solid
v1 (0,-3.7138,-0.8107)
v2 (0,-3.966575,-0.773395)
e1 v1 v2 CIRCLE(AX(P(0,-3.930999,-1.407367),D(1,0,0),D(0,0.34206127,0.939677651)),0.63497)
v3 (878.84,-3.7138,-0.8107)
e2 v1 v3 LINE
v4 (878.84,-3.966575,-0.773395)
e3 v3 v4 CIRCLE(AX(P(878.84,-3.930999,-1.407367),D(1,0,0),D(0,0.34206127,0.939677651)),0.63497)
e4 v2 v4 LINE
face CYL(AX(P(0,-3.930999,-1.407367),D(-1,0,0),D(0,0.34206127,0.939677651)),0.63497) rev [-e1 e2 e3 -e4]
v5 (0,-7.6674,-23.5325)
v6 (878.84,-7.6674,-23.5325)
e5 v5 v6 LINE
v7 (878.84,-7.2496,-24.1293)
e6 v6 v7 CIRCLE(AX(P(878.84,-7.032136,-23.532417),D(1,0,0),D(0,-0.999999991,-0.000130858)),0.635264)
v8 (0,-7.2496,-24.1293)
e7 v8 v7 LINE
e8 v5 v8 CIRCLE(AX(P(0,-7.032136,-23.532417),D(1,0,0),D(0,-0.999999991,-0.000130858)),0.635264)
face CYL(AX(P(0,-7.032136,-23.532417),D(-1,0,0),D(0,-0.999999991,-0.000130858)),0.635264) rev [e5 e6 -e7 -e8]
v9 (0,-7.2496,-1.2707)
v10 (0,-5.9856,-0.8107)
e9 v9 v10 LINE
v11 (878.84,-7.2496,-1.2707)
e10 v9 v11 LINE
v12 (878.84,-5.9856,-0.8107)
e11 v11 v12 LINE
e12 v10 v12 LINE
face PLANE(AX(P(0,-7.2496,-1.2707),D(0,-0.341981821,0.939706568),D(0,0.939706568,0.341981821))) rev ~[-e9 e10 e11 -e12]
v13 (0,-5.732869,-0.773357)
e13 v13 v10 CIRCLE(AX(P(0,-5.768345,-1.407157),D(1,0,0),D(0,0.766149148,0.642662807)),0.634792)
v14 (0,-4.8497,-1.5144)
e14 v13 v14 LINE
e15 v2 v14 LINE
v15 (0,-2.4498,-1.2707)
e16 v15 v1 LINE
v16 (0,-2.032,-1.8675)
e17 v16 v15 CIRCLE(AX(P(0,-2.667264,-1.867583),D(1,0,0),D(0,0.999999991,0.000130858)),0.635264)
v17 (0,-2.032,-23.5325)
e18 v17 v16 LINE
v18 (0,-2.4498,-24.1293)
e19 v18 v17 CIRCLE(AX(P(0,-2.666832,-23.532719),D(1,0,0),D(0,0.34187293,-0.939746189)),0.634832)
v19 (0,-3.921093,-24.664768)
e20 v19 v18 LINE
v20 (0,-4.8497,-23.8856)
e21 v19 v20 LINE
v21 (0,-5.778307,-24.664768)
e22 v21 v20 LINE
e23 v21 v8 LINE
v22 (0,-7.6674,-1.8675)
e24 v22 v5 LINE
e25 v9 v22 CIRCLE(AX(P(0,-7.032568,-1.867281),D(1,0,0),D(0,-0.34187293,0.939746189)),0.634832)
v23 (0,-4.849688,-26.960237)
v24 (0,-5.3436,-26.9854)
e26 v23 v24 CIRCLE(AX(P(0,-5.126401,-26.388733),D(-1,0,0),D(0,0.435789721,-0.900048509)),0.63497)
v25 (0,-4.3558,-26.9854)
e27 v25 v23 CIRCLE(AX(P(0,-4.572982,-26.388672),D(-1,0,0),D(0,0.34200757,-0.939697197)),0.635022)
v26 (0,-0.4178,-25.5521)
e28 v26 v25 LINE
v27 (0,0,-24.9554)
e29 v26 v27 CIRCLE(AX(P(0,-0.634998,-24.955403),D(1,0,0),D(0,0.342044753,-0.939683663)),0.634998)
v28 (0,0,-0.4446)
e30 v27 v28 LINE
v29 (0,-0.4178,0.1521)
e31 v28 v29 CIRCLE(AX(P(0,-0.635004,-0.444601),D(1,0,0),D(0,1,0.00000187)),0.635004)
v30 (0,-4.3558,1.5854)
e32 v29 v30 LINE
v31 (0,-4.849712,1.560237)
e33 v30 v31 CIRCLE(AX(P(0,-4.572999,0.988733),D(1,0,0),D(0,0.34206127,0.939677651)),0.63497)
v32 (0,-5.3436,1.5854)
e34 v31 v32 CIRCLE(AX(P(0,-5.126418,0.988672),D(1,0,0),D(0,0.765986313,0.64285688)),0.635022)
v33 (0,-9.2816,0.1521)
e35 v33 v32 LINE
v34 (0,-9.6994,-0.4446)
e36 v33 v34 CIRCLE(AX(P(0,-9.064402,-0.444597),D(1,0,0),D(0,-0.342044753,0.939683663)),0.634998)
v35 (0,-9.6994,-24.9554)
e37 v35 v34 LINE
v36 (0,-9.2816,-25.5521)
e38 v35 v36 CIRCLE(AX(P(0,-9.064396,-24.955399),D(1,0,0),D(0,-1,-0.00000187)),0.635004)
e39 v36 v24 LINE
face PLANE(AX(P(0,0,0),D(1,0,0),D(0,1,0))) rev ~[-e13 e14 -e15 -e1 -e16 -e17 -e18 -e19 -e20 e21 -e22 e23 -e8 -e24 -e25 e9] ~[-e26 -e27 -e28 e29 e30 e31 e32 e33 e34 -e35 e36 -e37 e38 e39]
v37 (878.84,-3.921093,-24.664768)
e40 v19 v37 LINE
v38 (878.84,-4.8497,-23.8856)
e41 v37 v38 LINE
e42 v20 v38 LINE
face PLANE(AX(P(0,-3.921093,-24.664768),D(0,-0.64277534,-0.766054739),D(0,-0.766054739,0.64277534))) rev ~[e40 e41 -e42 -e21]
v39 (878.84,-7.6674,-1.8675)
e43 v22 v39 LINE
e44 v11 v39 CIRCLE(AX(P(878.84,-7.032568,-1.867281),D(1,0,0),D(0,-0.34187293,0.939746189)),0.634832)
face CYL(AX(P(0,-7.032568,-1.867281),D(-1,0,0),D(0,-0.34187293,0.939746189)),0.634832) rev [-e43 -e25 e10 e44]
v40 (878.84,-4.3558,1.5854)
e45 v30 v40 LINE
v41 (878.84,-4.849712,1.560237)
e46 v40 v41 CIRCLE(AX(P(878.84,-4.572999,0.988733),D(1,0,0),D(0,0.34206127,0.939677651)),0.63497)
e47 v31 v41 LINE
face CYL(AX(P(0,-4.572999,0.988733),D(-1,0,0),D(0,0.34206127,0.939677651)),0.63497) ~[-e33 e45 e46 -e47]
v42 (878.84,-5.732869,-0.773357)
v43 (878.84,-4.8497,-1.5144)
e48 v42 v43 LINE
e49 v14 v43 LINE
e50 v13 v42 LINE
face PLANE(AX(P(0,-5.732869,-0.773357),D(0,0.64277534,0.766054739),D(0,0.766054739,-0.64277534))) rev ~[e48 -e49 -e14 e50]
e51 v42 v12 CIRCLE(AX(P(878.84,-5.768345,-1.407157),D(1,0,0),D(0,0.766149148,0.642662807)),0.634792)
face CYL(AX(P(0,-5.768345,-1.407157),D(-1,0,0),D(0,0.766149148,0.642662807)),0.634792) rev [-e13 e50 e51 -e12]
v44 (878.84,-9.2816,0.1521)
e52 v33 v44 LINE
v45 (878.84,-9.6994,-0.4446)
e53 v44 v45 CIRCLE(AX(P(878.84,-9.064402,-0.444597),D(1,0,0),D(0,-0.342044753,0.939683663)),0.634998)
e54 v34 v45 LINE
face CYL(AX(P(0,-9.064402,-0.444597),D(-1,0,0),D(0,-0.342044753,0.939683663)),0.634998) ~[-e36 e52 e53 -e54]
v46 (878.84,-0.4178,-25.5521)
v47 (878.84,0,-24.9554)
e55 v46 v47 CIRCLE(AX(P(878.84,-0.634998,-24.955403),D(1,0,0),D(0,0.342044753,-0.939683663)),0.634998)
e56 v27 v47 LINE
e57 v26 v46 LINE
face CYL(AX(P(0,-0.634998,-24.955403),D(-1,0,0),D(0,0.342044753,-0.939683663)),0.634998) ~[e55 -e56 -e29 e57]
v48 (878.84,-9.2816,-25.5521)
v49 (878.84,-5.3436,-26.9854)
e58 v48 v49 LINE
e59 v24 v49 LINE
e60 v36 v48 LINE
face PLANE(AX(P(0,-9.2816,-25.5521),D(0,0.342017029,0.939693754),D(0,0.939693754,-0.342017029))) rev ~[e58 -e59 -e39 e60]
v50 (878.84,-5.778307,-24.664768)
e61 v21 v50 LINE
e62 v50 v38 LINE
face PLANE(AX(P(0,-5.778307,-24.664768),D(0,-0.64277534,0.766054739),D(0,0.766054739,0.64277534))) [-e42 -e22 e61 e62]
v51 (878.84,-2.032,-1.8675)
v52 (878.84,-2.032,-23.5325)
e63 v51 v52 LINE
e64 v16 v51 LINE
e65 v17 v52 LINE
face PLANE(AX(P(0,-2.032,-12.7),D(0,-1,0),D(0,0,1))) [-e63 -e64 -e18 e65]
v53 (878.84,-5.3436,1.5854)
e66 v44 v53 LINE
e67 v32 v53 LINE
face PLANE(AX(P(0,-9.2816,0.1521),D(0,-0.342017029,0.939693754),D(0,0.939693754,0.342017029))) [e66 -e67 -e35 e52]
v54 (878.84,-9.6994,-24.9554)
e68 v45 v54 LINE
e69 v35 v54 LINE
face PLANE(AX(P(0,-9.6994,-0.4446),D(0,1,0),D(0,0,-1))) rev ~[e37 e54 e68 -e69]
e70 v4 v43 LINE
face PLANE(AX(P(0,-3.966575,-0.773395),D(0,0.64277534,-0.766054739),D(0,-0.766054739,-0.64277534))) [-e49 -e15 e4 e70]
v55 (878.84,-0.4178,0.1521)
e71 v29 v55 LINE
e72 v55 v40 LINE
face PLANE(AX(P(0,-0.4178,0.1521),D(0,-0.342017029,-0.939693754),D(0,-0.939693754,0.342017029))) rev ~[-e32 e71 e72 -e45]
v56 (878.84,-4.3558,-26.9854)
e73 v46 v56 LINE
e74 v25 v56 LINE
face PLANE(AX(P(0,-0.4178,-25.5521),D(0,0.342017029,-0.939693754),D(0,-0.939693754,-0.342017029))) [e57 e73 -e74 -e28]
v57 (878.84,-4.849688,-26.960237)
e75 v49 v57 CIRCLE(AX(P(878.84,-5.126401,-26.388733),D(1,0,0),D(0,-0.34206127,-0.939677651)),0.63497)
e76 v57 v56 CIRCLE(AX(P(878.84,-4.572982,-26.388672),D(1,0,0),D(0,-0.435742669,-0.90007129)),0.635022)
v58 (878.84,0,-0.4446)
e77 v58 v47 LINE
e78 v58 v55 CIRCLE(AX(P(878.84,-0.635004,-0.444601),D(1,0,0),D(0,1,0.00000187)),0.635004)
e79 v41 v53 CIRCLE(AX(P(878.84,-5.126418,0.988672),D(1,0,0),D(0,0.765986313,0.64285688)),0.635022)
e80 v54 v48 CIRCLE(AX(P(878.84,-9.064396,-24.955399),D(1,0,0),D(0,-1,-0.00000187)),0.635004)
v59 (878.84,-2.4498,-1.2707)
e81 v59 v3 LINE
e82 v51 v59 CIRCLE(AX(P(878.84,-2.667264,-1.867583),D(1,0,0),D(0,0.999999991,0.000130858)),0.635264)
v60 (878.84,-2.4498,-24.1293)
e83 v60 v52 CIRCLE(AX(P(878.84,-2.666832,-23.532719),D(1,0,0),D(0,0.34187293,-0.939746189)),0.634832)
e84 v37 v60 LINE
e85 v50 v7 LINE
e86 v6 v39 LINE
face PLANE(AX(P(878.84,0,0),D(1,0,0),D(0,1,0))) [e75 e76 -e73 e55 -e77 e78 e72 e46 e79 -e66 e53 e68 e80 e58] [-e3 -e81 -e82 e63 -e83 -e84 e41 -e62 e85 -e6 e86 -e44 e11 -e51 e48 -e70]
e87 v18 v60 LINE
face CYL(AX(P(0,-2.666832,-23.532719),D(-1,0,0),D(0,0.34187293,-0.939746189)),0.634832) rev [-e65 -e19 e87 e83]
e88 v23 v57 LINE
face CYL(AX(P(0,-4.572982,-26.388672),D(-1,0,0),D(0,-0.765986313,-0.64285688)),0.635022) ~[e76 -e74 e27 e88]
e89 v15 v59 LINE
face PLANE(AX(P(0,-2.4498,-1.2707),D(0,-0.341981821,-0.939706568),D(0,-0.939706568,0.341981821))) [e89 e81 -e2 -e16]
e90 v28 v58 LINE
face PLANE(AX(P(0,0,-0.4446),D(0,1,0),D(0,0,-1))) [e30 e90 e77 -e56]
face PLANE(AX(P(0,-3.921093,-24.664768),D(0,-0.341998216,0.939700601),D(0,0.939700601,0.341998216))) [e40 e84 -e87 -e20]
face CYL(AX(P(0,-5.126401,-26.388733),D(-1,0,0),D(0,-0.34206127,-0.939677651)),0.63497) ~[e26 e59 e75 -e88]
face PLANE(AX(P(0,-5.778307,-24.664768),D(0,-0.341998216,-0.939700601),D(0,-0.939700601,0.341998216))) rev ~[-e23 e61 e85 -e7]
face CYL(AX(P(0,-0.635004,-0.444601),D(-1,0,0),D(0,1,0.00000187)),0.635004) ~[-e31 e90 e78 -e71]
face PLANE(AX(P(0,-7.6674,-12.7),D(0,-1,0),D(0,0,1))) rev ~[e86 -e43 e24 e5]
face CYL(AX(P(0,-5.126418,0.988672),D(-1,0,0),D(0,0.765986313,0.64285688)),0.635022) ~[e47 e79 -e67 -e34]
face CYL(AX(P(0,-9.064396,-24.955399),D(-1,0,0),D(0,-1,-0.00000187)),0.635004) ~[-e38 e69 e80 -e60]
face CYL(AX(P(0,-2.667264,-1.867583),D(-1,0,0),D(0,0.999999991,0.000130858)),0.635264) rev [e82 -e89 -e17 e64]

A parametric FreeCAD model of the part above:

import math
import FreeCAD as App
import Part
import Sketcher

V = App.Vector
Q = App.Units.Quantity

doc = App.newDocument("Part")
body = doc.addObject("PartDesign::Body", "Body")

# Sketch on YZ plane
sketch1 = doc.addObject("Sketcher::SketchObject", "Sketch")
body.addObject(sketch1)
sketch1.AttachmentSupport = (doc.YZ_Plane, [""])
sketch1.MapMode = "FlatFace"
sketch1.addGeometry([
    Part.ArcOfCircle(Part.Circle(V(-0.635, -0.4446, 0), V(0, 0, 1), 0.635), math.radians(0), math.radians(69.998392)),  # 0
    Part.LineSegment(V(-0.4178, 0.1521, 0), V(-4.3558, 1.5854, 0)),  # 1
    Part.ArcOfCircle(Part.Circle(V(-4.573, 0.9887, 0), V(0, 0, 1), 0.635001), math.radians(69.998392), math.radians(115.834135)),  # 2
    Part.ArcOfCircle(Part.Circle(V(-5.1264, 0.9887, 0), V(0, 0, 1), 0.63499), math.radians(64.167787), math.radians(110.001608)),  # 3
    Part.LineSegment(V(-5.3436, 1.5854, 0), V(-9.2816, 0.1521, 0)),  # 4
    Part.ArcOfCircle(Part.Circle(V(-9.0644, -0.4446, 0), V(0, 0, 1), 0.635001), math.radians(110.001608), math.radians(180)),  # 5
    Part.LineSegment(V(-9.6994, -0.4446, 0), V(-9.6994, -24.9554, 0)),  # 6
    Part.ArcOfCircle(Part.Circle(V(-9.0644, -24.9554, 0), V(0, 0, 1), 0.635), math.radians(180), math.radians(249.998392)),  # 7
    Part.LineSegment(V(-9.2816, -25.5521, 0), V(-5.3436, -26.9854, 0)),  # 8
    Part.ArcOfCircle(Part.Circle(V(-5.1264, -26.3887, 0), V(0, 0, 1), 0.635001), math.radians(-110.001608), math.radians(-64.165865)),  # 9
    Part.ArcOfCircle(Part.Circle(V(-4.573, -26.3887, 0), V(0, 0, 1), 0.63499), math.radians(-115.832213), math.radians(-69.998392)),  # 10
    Part.LineSegment(V(-4.3558, -26.9854, 0), V(-0.4178, -25.5521, 0)),  # 11
    Part.ArcOfCircle(Part.Circle(V(-0.635, -24.9554, 0), V(0, 0, 1), 0.635001), math.radians(-69.998392), math.radians(0)),  # 12
    Part.LineSegment(V(0, -24.9554, 0), V(0, -0.4446, 0)),  # 13
    Part.LineSegment(V(-2.032, -1.8675, 0), V(-2.032, -23.5325, 0)),  # 14
    Part.ArcOfCircle(Part.Circle(V(-2.667, -23.5325, 0), V(0, 0, 1), 0.635095), math.radians(-70.001478), math.radians(0)),  # 15
    Part.LineSegment(V(-2.4498, -24.1293, 0), V(-3.921093, -24.664768, 0)),  # 16
    Part.LineSegment(V(-3.921093, -24.664768, 0), V(-4.8497, -23.8856, 0)),  # 17
    Part.LineSegment(V(-4.8497, -23.8856, 0), V(-5.778307, -24.664768, 0)),  # 18
    Part.LineSegment(V(-5.778307, -24.664768, 0), V(-7.2496, -24.1293, 0)),  # 19
    Part.ArcOfCircle(Part.Circle(V(-7.0324, -23.5325, 0), V(0, 0, 1), 0.635), math.radians(180), math.radians(250.001478)),  # 20
    Part.LineSegment(V(-7.6674, -23.5325, 0), V(-7.6674, -1.8675, 0)),  # 21
    Part.ArcOfCircle(Part.Circle(V(-7.0324, -1.8675, 0), V(0, 0, 1), 0.635095), math.radians(109.998522), math.radians(180)),  # 22
    Part.LineSegment(V(-7.2496, -1.2707, 0), V(-5.9856, -0.8107, 0)),  # 23
    Part.ArcOfCircle(Part.Circle(V(-5.7685, -1.4074, 0), V(0, 0, 1), 0.635067), math.radians(86.783556), math.radians(109.993129)),  # 24
    Part.LineSegment(V(-5.732869, -0.773357, 0), V(-4.8497, -1.5144, 0)),  # 25
    Part.LineSegment(V(-4.8497, -1.5144, 0), V(-3.966575, -0.773395, 0)),  # 26
    Part.ArcOfCircle(Part.Circle(V(-3.931, -1.4074, 0), V(0, 0, 1), 0.635001), math.radians(69.998392), math.radians(93.211622)),  # 27
    Part.LineSegment(V(-3.7138, -0.8107, 0), V(-2.4498, -1.2707, 0)),  # 28
    Part.ArcOfCircle(Part.Circle(V(-2.667, -1.8675, 0), V(0, 0, 1), 0.635), math.radians(0), math.radians(70.001478)),  # 29
], False)
sketch1.addConstraint([
    Sketcher.Constraint("Tangent", 0, 2, 1, 1),
    Sketcher.Constraint("Tangent", 1, 2, 2, 1),
    Sketcher.Constraint("Coincident", 2, 2, 3, 1),
    Sketcher.Constraint("Tangent", 3, 2, 4, 1),
    Sketcher.Constraint("Tangent", 4, 2, 5, 1),
    Sketcher.Constraint("Tangent", 5, 2, 6, 1),
    Sketcher.Constraint("Tangent", 6, 2, 7, 1),
    Sketcher.Constraint("Tangent", 7, 2, 8, 1),
    Sketcher.Constraint("Tangent", 8, 2, 9, 1),
    Sketcher.Constraint("Coincident", 9, 2, 10, 1),
    Sketcher.Constraint("Tangent", 10, 2, 11, 1),
    Sketcher.Constraint("Tangent", 11, 2, 12, 1),
    Sketcher.Constraint("Tangent", 12, 2, 13, 1),
    Sketcher.Constraint("Tangent", 13, 2, 0, 1),
    Sketcher.Constraint("Tangent", 14, 2, 15, 2),
    Sketcher.Constraint("Tangent", 15, 1, 16, 1),
    Sketcher.Constraint("Coincident", 16, 2, 17, 1),
    Sketcher.Constraint("Coincident", 17, 2, 18, 1),
    Sketcher.Constraint("Coincident", 18, 2, 19, 1),
    Sketcher.Constraint("Tangent", 19, 2, 20, 2),
    Sketcher.Constraint("Tangent", 20, 1, 21, 1),
    Sketcher.Constraint("Tangent", 21, 2, 22, 2),
    Sketcher.Constraint("Tangent", 22, 1, 23, 1),
    Sketcher.Constraint("Tangent", 23, 2, 24, 2),
    Sketcher.Constraint("Coincident", 24, 1, 25, 1),
    Sketcher.Constraint("Coincident", 25, 2, 26, 1),
    Sketcher.Constraint("Coincident", 26, 2, 27, 2),
    Sketcher.Constraint("Tangent", 27, 1, 28, 1),
    Sketcher.Constraint("Tangent", 28, 2, 29, 2),
    Sketcher.Constraint("Tangent", 29, 1, 14, 1),
    Sketcher.Constraint("Vertical", 6),
    Sketcher.Constraint("Vertical", 13),
    Sketcher.Constraint("Vertical", 14),
    Sketcher.Constraint("Vertical", 21),
    Sketcher.Constraint("Equal", 0, 2),
    Sketcher.Constraint("Equal", 2, 3),
    Sketcher.Constraint("Equal", 3, 5),
    Sketcher.Constraint("Equal", 5, 7),
    Sketcher.Constraint("Equal", 7, 9),
    Sketcher.Constraint("Equal", 9, 10),
    Sketcher.Constraint("Equal", 10, 12),
    Sketcher.Constraint("Equal", 12, 15),
    Sketcher.Constraint("Equal", 15, 20),
    Sketcher.Constraint("Equal", 20, 22),
    Sketcher.Constraint("Equal", 22, 24),
    Sketcher.Constraint("Equal", 24, 27),
    Sketcher.Constraint("Equal", 27, 29),
    Sketcher.Constraint("PointOnObject", 12, 2, -2),
    Sketcher.Constraint("Parallel", 1, 8),
    Sketcher.Constraint("Parallel", 4, 11),
    Sketcher.Constraint("Parallel", 11, 16),
    Sketcher.Constraint("Parallel", 8, 19),
    Sketcher.Constraint("Parallel", 16, 23),
    Sketcher.Constraint("Parallel", 17, 25),
    Sketcher.Constraint("Parallel", 18, 26),
    Sketcher.Constraint("Parallel", 19, 28),
    Sketcher.Constraint("Horizontal", 2, 3, 3, 3),
    Sketcher.Constraint("Horizontal", 0, 3, 5, 3),
    Sketcher.Constraint("Horizontal", 9, 3, 10, 3),
    Sketcher.Constraint("Horizontal", 7, 3, 12, 3),
    Sketcher.Constraint("Horizontal", 15, 3, 20, 3),
    Sketcher.Constraint("Horizontal", 24, 3, 27, 3),
    Sketcher.Constraint("Horizontal", 22, 3, 29, 3),
    Sketcher.Constraint("Horizontal", 1, 2, 3, 2),
    Sketcher.Constraint("Horizontal", 16, 2, 18, 2),
    Sketcher.Constraint("Horizontal", 24, 1, 26, 2),
    Sketcher.Constraint("Vertical", 3, 3, 9, 3),
    Sketcher.Constraint("Vertical", 9, 2, 17, 2),
    Sketcher.Constraint("Vertical", 17, 2, 25, 2),
    Sketcher.Constraint("Radius", 0, Q("0.025 in")),
    Sketcher.Constraint("DistanceX", 14, 2, -1, 1, Q("0.08 in")),
    Sketcher.Constraint("Angle", 1, Q("160.0002 deg")),
    Sketcher.Constraint("Angle", 17, Q("140.001 deg")),
    Sketcher.Constraint("DistanceY", 6, 2, 6, 1, Q("0.965 in")),
    Sketcher.Constraint("Distance", 1, Q("0.165 in")),
    Sketcher.Constraint("DistanceY", -1, 1, 0, 2, Q("0.006 in")),
    Sketcher.Constraint("DistanceX", 20, 3, 15, 3, Q("0.1718661 in")),
    Sketcher.Constraint("Distance", 25, Q("0.0454 in")),
    Sketcher.Constraint("DistanceY", 14, 2, 14, 1, Q("21.665 mm")),
    Sketcher.Constraint("DistanceX", 24, 3, -1, 1, Q("0.2271 in")),
    Sketcher.Constraint("DistanceY", 24, 3, -1, 1, Q("0.0554 in")),
    Sketcher.Constraint("DistanceX", 18, 2, -1, 1, Q("0.2275 in")),
])
pad1 = doc.addObject("PartDesign::Pad", "Pad")
body.addObject(pad1)
pad1.Profile = sketch1
pad1.Length = Q("34.6 in")

doc.recompute()
